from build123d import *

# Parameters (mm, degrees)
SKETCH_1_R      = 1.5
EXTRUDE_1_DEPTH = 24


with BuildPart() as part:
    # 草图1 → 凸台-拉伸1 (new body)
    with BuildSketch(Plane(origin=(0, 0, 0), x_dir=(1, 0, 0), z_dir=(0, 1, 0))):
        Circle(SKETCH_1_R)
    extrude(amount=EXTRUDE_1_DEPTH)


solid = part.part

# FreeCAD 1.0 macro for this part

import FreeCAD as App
import Part
import Sketcher
from FreeCAD import Vector
Q = App.Units.Quantity

doc = App.newDocument("Part")
body = doc.addObject("PartDesign::Body", "Body")

sketch1 = body.newObject("Sketcher::SketchObject", "Sketch")
sketch1.AttachmentSupport = (doc.getObject("XZ_Plane"), [""])
sketch1.MapMode = "FlatFace"
sketch1.addGeometry(Part.Circle(Vector(0, 0, 0), Vector(0, 0, 1), 1.5), False)
sketch1.addConstraint(Sketcher.Constraint("Coincident", 0, 3, -1, 1))
sketch1.addConstraint(Sketcher.Constraint("Diameter", 0, Q("3 mm")))
pad1 = body.newObject("PartDesign::Pad", "Pad")
pad1.Profile = sketch1
pad1.Length = 24
pad1.Reversed = True

doc.recompute()
